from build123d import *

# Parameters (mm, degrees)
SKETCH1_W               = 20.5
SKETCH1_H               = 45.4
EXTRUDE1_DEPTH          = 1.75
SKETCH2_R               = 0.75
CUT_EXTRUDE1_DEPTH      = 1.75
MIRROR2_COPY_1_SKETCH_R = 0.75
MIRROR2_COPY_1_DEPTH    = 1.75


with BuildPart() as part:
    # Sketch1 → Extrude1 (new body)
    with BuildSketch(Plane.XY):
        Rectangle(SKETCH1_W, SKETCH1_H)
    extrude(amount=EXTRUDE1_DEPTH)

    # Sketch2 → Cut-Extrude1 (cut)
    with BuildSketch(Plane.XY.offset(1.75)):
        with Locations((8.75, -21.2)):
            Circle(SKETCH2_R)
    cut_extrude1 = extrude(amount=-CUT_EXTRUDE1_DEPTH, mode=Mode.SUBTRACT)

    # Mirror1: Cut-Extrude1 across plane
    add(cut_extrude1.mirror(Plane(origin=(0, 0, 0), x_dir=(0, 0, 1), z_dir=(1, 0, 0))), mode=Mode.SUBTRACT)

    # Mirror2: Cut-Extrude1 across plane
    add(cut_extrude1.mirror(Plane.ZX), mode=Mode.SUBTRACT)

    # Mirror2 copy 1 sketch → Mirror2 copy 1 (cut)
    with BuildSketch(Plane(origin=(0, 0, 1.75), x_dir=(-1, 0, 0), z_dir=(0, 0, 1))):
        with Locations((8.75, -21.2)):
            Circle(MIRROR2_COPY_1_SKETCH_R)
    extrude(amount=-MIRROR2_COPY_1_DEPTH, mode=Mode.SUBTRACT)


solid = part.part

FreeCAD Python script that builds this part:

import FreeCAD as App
import Part
import Sketcher

V = App.Vector

doc = App.newDocument("Part")
body = doc.addObject("PartDesign::Body", "Body")

# Sketch on XY plane
sketch1 = doc.addObject("Sketcher::SketchObject", "Sketch")
body.addObject(sketch1)
sketch1.AttachmentSupport = (doc.XY_Plane, [""])
sketch1.MapMode = "FlatFace"
sketch1.addGeometry([
    Part.LineSegment(V(-10.25, 22.7, 0), V(-10.25, -22.7, 0)),
    Part.LineSegment(V(-10.25, -22.7, 0), V(10.25, -22.7, 0)),
    Part.LineSegment(V(10.25, -22.7, 0), V(10.25, 22.7, 0)),
    Part.LineSegment(V(10.25, 22.7, 0), V(-10.25, 22.7, 0)),
], False)
sketch1.addConstraint([
    Sketcher.Constraint("Coincident", 0, 2, 1, 1),
    Sketcher.Constraint("Coincident", 1, 2, 2, 1),
    Sketcher.Constraint("Coincident", 2, 2, 3, 1),
    Sketcher.Constraint("Coincident", 3, 2, 0, 1),
    Sketcher.Constraint("Vertical", 0),
    Sketcher.Constraint("Horizontal", 1),
    Sketcher.Constraint("Vertical", 2),
    Sketcher.Constraint("Horizontal", 3),
    Sketcher.Constraint("Symmetric", 0, 2, 2, 2, -1, 1),
    Sketcher.Constraint("DistanceX", 1, 1, 1, 2, 20.5),
    Sketcher.Constraint("DistanceY", 0, 2, 0, 1, 45.4),
])
pad1 = doc.addObject("PartDesign::Pad", "Pad")
body.addObject(pad1)
pad1.Profile = sketch1
pad1.Length = 1.75

# Sketch on XY plane
sketch2 = doc.addObject("Sketcher::SketchObject", "Sketch001")
body.addObject(sketch2)
sketch2.AttachmentSupport = (doc.XY_Plane, [""])
sketch2.MapMode = "FlatFace"
sketch2.AttachmentOffset = App.Placement(V(0, 0, 1.75), App.Rotation())
sketch2.addGeometry(Part.Circle(V(8.75, -21.2, 0), V(0, 0, 1), 0.75), False)
sketch2.addConstraint([
    Sketcher.Constraint("Diameter", 0, 1.5),
    Sketcher.Constraint("DistanceY", 0, 3, -1, 1, 21.2),
    Sketcher.Constraint("DistanceX", -1, 1, 0, 3, 8.75),
])
pocket1 = doc.addObject("PartDesign::Pocket", "Pocket")
body.addObject(pocket1)
pocket1.Profile = sketch2
pocket1.Length = 1.75
doc.recompute()

mirrored = doc.addObject("PartDesign::Mirrored", "Mirrored")
body.addObject(mirrored)
mirrored.Originals = [pocket1]
mirrored.MirrorPlane = (doc.YZ_Plane, [""])
body.Tip = mirrored
doc.recompute()

mirrored2 = doc.addObject("PartDesign::Mirrored", "Mirrored001")
body.addObject(mirrored2)
mirrored2.Originals = [pocket1]
mirrored2.MirrorPlane = (doc.XZ_Plane, [""])
body.Tip = mirrored2

# Sketch on XY plane
sketch3 = doc.addObject("Sketcher::SketchObject", "Sketch002")
body.addObject(sketch3)
sketch3.AttachmentSupport = (doc.XY_Plane, [""])
sketch3.MapMode = "FlatFace"
sketch3.AttachmentOffset = App.Placement(V(0, 0, 1.75), App.Rotation())
sketch3.addGeometry(Part.Circle(V(-8.75, 21.2, 0), V(0, 0, 1), 0.75), False)
sketch3.addConstraint([
    Sketcher.Constraint("Diameter", 0, 1.5),
    Sketcher.Constraint("DistanceY", -1, 1, 0, 3, 21.2),
    Sketcher.Constraint("DistanceX", 0, 3, -1, 1, 8.75),
])
pocket2 = doc.addObject("PartDesign::Pocket", "Pocket001")
body.addObject(pocket2)
pocket2.Profile = sketch3
pocket2.Length = 1.75

doc.recompute()
